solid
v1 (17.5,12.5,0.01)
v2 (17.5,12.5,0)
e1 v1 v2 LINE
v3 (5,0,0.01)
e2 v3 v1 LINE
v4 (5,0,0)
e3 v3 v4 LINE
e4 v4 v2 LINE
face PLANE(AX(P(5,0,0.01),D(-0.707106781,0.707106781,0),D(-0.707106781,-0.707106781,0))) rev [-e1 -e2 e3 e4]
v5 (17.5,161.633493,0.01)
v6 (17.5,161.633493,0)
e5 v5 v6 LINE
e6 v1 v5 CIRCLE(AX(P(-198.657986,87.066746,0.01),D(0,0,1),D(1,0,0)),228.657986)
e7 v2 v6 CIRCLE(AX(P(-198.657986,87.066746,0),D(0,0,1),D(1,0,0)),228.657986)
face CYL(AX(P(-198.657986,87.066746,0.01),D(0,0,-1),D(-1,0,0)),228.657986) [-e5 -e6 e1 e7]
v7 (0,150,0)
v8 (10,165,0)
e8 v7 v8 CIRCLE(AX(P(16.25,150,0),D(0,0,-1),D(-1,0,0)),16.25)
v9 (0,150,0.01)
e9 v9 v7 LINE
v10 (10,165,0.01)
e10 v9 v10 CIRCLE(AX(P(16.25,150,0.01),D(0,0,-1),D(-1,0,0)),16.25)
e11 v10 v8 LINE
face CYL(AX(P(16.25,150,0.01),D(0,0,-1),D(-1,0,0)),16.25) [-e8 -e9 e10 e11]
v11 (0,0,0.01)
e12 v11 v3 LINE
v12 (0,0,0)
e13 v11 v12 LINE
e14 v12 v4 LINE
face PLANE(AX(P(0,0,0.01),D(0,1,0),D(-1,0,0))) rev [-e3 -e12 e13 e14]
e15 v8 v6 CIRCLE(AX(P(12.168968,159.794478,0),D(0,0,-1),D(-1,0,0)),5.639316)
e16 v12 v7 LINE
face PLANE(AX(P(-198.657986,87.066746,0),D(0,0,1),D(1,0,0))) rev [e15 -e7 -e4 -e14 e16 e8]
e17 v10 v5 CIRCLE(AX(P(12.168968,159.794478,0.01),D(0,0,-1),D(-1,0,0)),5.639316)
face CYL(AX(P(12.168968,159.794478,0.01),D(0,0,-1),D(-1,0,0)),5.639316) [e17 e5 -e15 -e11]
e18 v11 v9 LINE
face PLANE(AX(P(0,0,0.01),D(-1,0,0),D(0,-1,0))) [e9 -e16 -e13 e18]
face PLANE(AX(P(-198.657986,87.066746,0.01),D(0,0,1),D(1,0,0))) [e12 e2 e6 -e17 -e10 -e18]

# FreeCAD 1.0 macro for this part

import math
import FreeCAD as App
import Part
import Sketcher
Q = App.Units.Quantity

doc = App.newDocument("Part")
body = doc.addObject("PartDesign::Body", "Body")

# Sketch on XY plane
sketch1 = body.newObject("Sketcher::SketchObject", "Sketch")
sketch1.AttachmentSupport = (doc.getObject("XY_Plane"), [""])
sketch1.MapMode = "FlatFace"
sketch1.addGeometry([
    Part.LineSegment(App.Vector(0, 150, 0), App.Vector(0, 0, 0)),  # 0
    Part.LineSegment(App.Vector(0, 0, 0), App.Vector(5, 0, 0)),  # 1
    Part.LineSegment(App.Vector(5, 0, 0), App.Vector(17.5, 12.5, 0)),  # 2
    Part.ArcOfCircle(Part.Circle(App.Vector(-198.657986, 87.066746, 0), App.Vector(0, 0, 1), 228.657986), math.radians(-19.032596), math.radians(19.032596)),  # 3
    Part.ArcOfCircle(Part.Circle(App.Vector(12.168968, 159.794478, 0), App.Vector(0, 0, 1), 5.639316), math.radians(19.032596), math.radians(112.619865)),  # 4
    Part.ArcOfCircle(Part.Circle(App.Vector(16.25, 150, 0), App.Vector(0, 0, 1), 16.25), math.radians(112.619865), math.radians(180)),  # 5
], False)
sketch1.addConstraint([
    Sketcher.Constraint("Coincident", 0, 2, 1, 1),
    Sketcher.Constraint("Coincident", 1, 2, 2, 1),
    Sketcher.Constraint("Coincident", 2, 2, 3, 1),
    Sketcher.Constraint("Tangent", 3, 2, 4, 1),
    Sketcher.Constraint("Tangent", 4, 2, 5, 1),
    Sketcher.Constraint("Tangent", 5, 2, 0, 1),
    Sketcher.Constraint("Vertical", 0),
    Sketcher.Constraint("Horizontal", 1),
    Sketcher.Constraint("Coincident", 0, 2, -1, 1),
    Sketcher.Constraint("Vertical", 2, 2, 3, 2),
    Sketcher.Constraint("DistanceX", 1, 1, 1, 2, Q("5 mm")),
    Sketcher.Constraint("DistanceY", 0, 2, 0, 1, Q("150 mm")),
    Sketcher.Constraint("Angle", 2, Q("45 deg")),
    Sketcher.Constraint("Radius", 5, Q("16.25 mm")),
    Sketcher.Constraint("DistanceX", -1, 1, 4, 2, Q("10 mm")),
    Sketcher.Constraint("DistanceX", -1, 1, 2, 2, Q("17.5 mm")),
    Sketcher.Constraint("Radius", 3, Q("228.657986 mm")),
])
pad1 = body.newObject("PartDesign::Pad", "Pad")
pad1.Profile = sketch1
pad1.Length = 0.01

doc.recompute()
